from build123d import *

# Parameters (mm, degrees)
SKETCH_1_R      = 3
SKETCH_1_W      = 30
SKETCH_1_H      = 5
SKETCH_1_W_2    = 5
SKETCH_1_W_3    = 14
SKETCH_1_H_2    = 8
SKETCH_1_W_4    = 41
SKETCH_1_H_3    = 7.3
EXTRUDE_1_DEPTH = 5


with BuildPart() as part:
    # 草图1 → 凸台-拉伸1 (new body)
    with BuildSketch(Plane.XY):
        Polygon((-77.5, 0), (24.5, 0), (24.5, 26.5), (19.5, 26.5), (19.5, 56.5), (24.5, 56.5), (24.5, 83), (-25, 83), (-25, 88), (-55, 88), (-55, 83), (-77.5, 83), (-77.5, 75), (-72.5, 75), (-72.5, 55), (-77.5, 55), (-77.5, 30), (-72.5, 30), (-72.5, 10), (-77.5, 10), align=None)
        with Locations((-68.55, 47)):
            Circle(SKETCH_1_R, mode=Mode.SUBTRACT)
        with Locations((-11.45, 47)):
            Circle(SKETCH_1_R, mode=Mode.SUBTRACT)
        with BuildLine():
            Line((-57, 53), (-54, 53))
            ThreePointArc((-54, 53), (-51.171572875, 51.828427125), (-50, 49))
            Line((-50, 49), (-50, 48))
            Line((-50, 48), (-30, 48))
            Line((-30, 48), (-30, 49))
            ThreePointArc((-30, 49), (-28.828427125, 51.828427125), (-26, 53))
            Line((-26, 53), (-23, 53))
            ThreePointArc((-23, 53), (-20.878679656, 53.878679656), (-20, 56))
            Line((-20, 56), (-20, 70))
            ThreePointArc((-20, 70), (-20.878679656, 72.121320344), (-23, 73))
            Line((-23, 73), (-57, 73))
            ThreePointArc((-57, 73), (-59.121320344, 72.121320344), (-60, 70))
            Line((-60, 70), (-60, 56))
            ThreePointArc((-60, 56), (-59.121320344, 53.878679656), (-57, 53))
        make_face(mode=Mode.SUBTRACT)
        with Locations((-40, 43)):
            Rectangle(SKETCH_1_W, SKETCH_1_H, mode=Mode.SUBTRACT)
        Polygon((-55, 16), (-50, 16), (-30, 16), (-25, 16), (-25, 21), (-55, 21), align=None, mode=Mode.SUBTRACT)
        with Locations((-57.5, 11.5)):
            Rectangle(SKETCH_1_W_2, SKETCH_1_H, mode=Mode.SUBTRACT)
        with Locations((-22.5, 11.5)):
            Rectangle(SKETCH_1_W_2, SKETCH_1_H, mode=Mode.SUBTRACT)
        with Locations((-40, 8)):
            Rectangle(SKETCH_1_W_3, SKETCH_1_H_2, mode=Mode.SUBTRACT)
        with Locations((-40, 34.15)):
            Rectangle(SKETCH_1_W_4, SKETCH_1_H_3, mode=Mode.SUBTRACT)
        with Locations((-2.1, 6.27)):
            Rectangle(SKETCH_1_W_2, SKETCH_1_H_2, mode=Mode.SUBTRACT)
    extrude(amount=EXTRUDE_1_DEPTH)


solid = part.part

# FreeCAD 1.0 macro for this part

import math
import FreeCAD as App
import Part
import Sketcher


def add_polygon(sketch, points):
    """Adds a closed chain of lines whose ends are joined by coincident constraints."""
    first, n = sketch.GeometryCount, len(points)
    for a, b in zip(points, points[1:] + points[:1]):
        sketch.addGeometry(Part.LineSegment(App.Vector(*a, 0), App.Vector(*b, 0)), False)
    for i in range(n):
        sketch.addConstraint(Sketcher.Constraint("Coincident", first + i, 2, first + (i + 1) % n, 1))

doc = App.newDocument("Part")
params = doc.addObject("Spreadsheet::Sheet", "Params")
for row, (alias, value) in enumerate([
    ("sketch1_diameter", "6 mm"),
    ("sketch1_radius", "4 mm"),
    ("sketch1_width", "102 mm"),
    ("sketch1_width2", "5 mm"),
    ("sketch1_width3", "30 mm"),
    ("pad1_length", "5 mm"),
], start=1):
    params.set(f"A{row}", alias)
    params.set(f"B{row}", "=" + value)
    params.setAlias(f"B{row}", alias)

body = doc.addObject("PartDesign::Body", "Body")

# Sketch on XY plane
sketch1 = body.newObject("Sketcher::SketchObject", "Sketch")
sketch1.AttachmentSupport = (doc.getObject("XY_Plane"), [""])
sketch1.MapMode = "FlatFace"
add_polygon(sketch1, [(-77.5, 0), (24.5, 0), (24.5, 26.5), (19.5, 26.5), (19.5, 56.5), (24.5, 56.5), (24.5, 83), (-25, 83), (-25, 88), (-55, 88), (-55, 83), (-77.5, 83), (-77.5, 75), (-72.5, 75), (-72.5, 55), (-77.5, 55), (-77.5, 30), (-72.5, 30), (-72.5, 10), (-77.5, 10)])  # lines 0-19
add_polygon(sketch1, [(-55, 9), (-60, 9), (-60, 14), (-55, 14)])  # lines 20-23
add_polygon(sketch1, [(-33, 4), (-47, 4), (-47, 12), (-33, 12)])  # lines 24-27
add_polygon(sketch1, [(-25, 16), (-55, 16), (-55, 21), (-25, 21)])  # lines 28-31
add_polygon(sketch1, [(-19.5, 30.5), (-60.5, 30.5), (-60.5, 37.8), (-19.5, 37.8)])  # lines 32-35
add_polygon(sketch1, [(-20, 9), (-25, 9), (-25, 14), (-20, 14)])  # lines 36-39
add_polygon(sketch1, [(0.4, 2.3), (-4.6, 2.3), (-4.6, 10.3), (0.4, 10.3)])  # lines 40-43
sketch1.addGeometry(Part.Circle(App.Vector(-68.5, 47, 0), App.Vector(0, 0, 1), 3), False)  # 44
add_polygon(sketch1, [(-25, 40.5), (-55, 40.5), (-55, 45.5), (-25, 45.5)])  # lines 45-48
sketch1.addGeometry(Part.LineSegment(App.Vector(-54, 53, 0), App.Vector(-57, 53, 0)), False)  # 49
sketch1.addGeometry(Part.ArcOfCircle(Part.Circle(App.Vector(-57, 56, 0), App.Vector(0, 0, 1), 3), math.radians(180), math.radians(270)), False)  # 50
sketch1.addGeometry(Part.LineSegment(App.Vector(-60, 56, 0), App.Vector(-60, 70, 0)), False)  # 51
sketch1.addGeometry(Part.ArcOfCircle(Part.Circle(App.Vector(-57, 70, 0), App.Vector(0, 0, 1), 3), math.radians(90), math.radians(180)), False)  # 52
sketch1.addGeometry(Part.LineSegment(App.Vector(-57, 73, 0), App.Vector(-23, 73, 0)), False)  # 53
sketch1.addGeometry(Part.ArcOfCircle(Part.Circle(App.Vector(-23, 70, 0), App.Vector(0, 0, 1), 3), math.radians(0), math.radians(90)), False)  # 54
sketch1.addGeometry(Part.LineSegment(App.Vector(-20, 70, 0), App.Vector(-20, 56, 0)), False)  # 55
sketch1.addGeometry(Part.ArcOfCircle(Part.Circle(App.Vector(-23, 56, 0), App.Vector(0, 0, 1), 3), math.radians(-90), math.radians(0)), False)  # 56
sketch1.addGeometry(Part.LineSegment(App.Vector(-23, 53, 0), App.Vector(-26, 53, 0)), False)  # 57
sketch1.addGeometry(Part.ArcOfCircle(Part.Circle(App.Vector(-26, 49, 0), App.Vector(0, 0, 1), 4), math.radians(90), math.radians(180)), False)  # 58
sketch1.addGeometry(Part.LineSegment(App.Vector(-30, 49, 0), App.Vector(-30, 48, 0)), False)  # 59
sketch1.addGeometry(Part.LineSegment(App.Vector(-30, 48, 0), App.Vector(-50, 48, 0)), False)  # 60
sketch1.addGeometry(Part.LineSegment(App.Vector(-50, 48, 0), App.Vector(-50, 49, 0)), False)  # 61
sketch1.addGeometry(Part.ArcOfCircle(Part.Circle(App.Vector(-54, 49, 0), App.Vector(0, 0, 1), 4), math.radians(0), math.radians(90)), False)  # 62
sketch1.addGeometry(Part.Circle(App.Vector(-11.4, 47, 0), App.Vector(0, 0, 1), 3), False)  # 63
sketch1.addConstraint(Sketcher.Constraint("Tangent", 49, 2, 50, 2))
sketch1.addConstraint(Sketcher.Constraint("Tangent", 50, 1, 51, 1))
sketch1.addConstraint(Sketcher.Constraint("Tangent", 51, 2, 52, 2))
sketch1.addConstraint(Sketcher.Constraint("Tangent", 52, 1, 53, 1))
sketch1.addConstraint(Sketcher.Constraint("Tangent", 53, 2, 54, 2))
sketch1.addConstraint(Sketcher.Constraint("Tangent", 54, 1, 55, 1))
sketch1.addConstraint(Sketcher.Constraint("Tangent", 55, 2, 56, 2))
sketch1.addConstraint(Sketcher.Constraint("Tangent", 56, 1, 57, 1))
sketch1.addConstraint(Sketcher.Constraint("Tangent", 57, 2, 58, 1))
sketch1.addConstraint(Sketcher.Constraint("Tangent", 58, 2, 59, 1))
sketch1.addConstraint(Sketcher.Constraint("Coincident", 59, 2, 60, 1))
sketch1.addConstraint(Sketcher.Constraint("Coincident", 60, 2, 61, 1))
sketch1.addConstraint(Sketcher.Constraint("Tangent", 61, 2, 62, 1))
sketch1.addConstraint(Sketcher.Constraint("Tangent", 62, 2, 49, 1))
sketch1.addConstraint(Sketcher.Constraint("Horizontal", 0))
sketch1.addConstraint(Sketcher.Constraint("Vertical", 1))
sketch1.addConstraint(Sketcher.Constraint("Horizontal", 2))
sketch1.addConstraint(Sketcher.Constraint("Vertical", 3))
sketch1.addConstraint(Sketcher.Constraint("Horizontal", 4))
sketch1.addConstraint(Sketcher.Constraint("Vertical", 5))
sketch1.addConstraint(Sketcher.Constraint("Horizontal", 6))
sketch1.addConstraint(Sketcher.Constraint("Vertical", 7))
sketch1.addConstraint(Sketcher.Constraint("Horizontal", 8))
sketch1.addConstraint(Sketcher.Constraint("Vertical", 9))
sketch1.addConstraint(Sketcher.Constraint("Horizontal", 10))
sketch1.addConstraint(Sketcher.Constraint("Vertical", 11))
sketch1.addConstraint(Sketcher.Constraint("Horizontal", 12))
sketch1.addConstraint(Sketcher.Constraint("Vertical", 13))
sketch1.addConstraint(Sketcher.Constraint("Horizontal", 14))
sketch1.addConstraint(Sketcher.Constraint("Vertical", 15))
sketch1.addConstraint(Sketcher.Constraint("Horizontal", 16))
sketch1.addConstraint(Sketcher.Constraint("Vertical", 17))
sketch1.addConstraint(Sketcher.Constraint("Horizontal", 18))
sketch1.addConstraint(Sketcher.Constraint("Vertical", 19))
sketch1.addConstraint(Sketcher.Constraint("Horizontal", 20))
sketch1.addConstraint(Sketcher.Constraint("Vertical", 21))
sketch1.addConstraint(Sketcher.Constraint("Horizontal", 22))
sketch1.addConstraint(Sketcher.Constraint("Vertical", 23))
sketch1.addConstraint(Sketcher.Constraint("Horizontal", 24))
sketch1.addConstraint(Sketcher.Constraint("Vertical", 25))
sketch1.addConstraint(Sketcher.Constraint("Horizontal", 26))
sketch1.addConstraint(Sketcher.Constraint("Vertical", 27))
sketch1.addConstraint(Sketcher.Constraint("Horizontal", 28))
sketch1.addConstraint(Sketcher.Constraint("Vertical", 29))
sketch1.addConstraint(Sketcher.Constraint("Horizontal", 30))
sketch1.addConstraint(Sketcher.Constraint("Vertical", 31))
sketch1.addConstraint(Sketcher.Constraint("Horizontal", 32))
sketch1.addConstraint(Sketcher.Constraint("Vertical", 33))
sketch1.addConstraint(Sketcher.Constraint("Horizontal", 34))
sketch1.addConstraint(Sketcher.Constraint("Vertical", 35))
sketch1.addConstraint(Sketcher.Constraint("Horizontal", 36))
sketch1.addConstraint(Sketcher.Constraint("Vertical", 37))
sketch1.addConstraint(Sketcher.Constraint("Horizontal", 38))
sketch1.addConstraint(Sketcher.Constraint("Vertical", 39))
sketch1.addConstraint(Sketcher.Constraint("Horizontal", 40))
sketch1.addConstraint(Sketcher.Constraint("Vertical", 41))
sketch1.addConstraint(Sketcher.Constraint("Horizontal", 42))
sketch1.addConstraint(Sketcher.Constraint("Vertical", 43))
sketch1.addConstraint(Sketcher.Constraint("Horizontal", 45))
sketch1.addConstraint(Sketcher.Constraint("Vertical", 46))
sketch1.addConstraint(Sketcher.Constraint("Horizontal", 47))
sketch1.addConstraint(Sketcher.Constraint("Vertical", 48))
sketch1.addConstraint(Sketcher.Constraint("Horizontal", 49))
sketch1.addConstraint(Sketcher.Constraint("Vertical", 51))
sketch1.addConstraint(Sketcher.Constraint("Horizontal", 53))
sketch1.addConstraint(Sketcher.Constraint("Vertical", 55))
sketch1.addConstraint(Sketcher.Constraint("Horizontal", 57))
sketch1.addConstraint(Sketcher.Constraint("Vertical", 59))
sketch1.addConstraint(Sketcher.Constraint("Horizontal", 60))
sketch1.addConstraint(Sketcher.Constraint("Vertical", 61))
sketch1.addConstraint(Sketcher.Constraint("Equal", 44, 50))
sketch1.addConstraint(Sketcher.Constraint("Equal", 50, 52))
sketch1.addConstraint(Sketcher.Constraint("Equal", 52, 54))
sketch1.addConstraint(Sketcher.Constraint("Equal", 54, 56))
sketch1.addConstraint(Sketcher.Constraint("Equal", 58, 62))
sketch1.addConstraint(Sketcher.Constraint("Equal", 56, 63))
sketch1.addConstraint(Sketcher.Constraint("PointOnObject", 0, 2, -1))
sketch1.addConstraint(Sketcher.Constraint("Horizontal", 50, 3, 56, 3))
sketch1.addConstraint(Sketcher.Constraint("Horizontal", 44, 3, 63, 3))
sketch1.addConstraint(Sketcher.Constraint("Horizontal", 6, 2, 9, 2))
sketch1.addConstraint(Sketcher.Constraint("Horizontal", 23, 2, 36, 2))
sketch1.addConstraint(Sketcher.Constraint("Horizontal", 22, 2, 37, 2))
sketch1.addConstraint(Sketcher.Constraint("Vertical", 1, 2, 4, 2))
sketch1.addConstraint(Sketcher.Constraint("Vertical", 11, 2, 14, 2))
sketch1.addConstraint(Sketcher.Constraint("Vertical", 13, 2, 16, 2))
sketch1.addConstraint(Sketcher.Constraint("Vertical", 15, 2, 18, 2))
sketch1.addConstraint(Sketcher.Constraint("Vertical", 9, 2, 22, 2))
sketch1.addConstraint(Sketcher.Constraint("Vertical", 23, 2, 28, 2))
sketch1.addConstraint(Sketcher.Constraint("Vertical", 7, 2, 30, 2))
sketch1.addConstraint(Sketcher.Constraint("Vertical", 31, 2, 36, 2))
sketch1.addConstraint(Sketcher.Constraint("Vertical", 29, 2, 45, 2))
sketch1.addConstraint(Sketcher.Constraint("Vertical", 37, 2, 47, 2))
sketch1.addConstraint(Sketcher.Constraint("Vertical", 21, 2, 50, 1))
sketch1.addConstraint(Sketcher.Constraint("Vertical", 39, 2, 54, 1))
sketch1.addConstraint(Sketcher.Constraint("Equal", 4, 12))
sketch1.addConstraint(Sketcher.Constraint("Equal", 18, 20))
sketch1.addConstraint(Sketcher.Constraint("Equal", 22, 36))
sketch1.addConstraint(Sketcher.Constraint("Equal", 38, 40))
sketch1.addConstraint(Sketcher.Constraint("Equal", 49, 57))
sketch1.addConstraint(Sketcher.Constraint("Equal", 47, 3))
sketch1.addConstraint(Sketcher.Constraint("Equal", 1, 5))
sketch1.addConstraint(Sketcher.Constraint("Equal", 42, 7))
sketch1.addConstraint(Sketcher.Constraint("Equal", 60, 13))
sketch1.addConstraint(Sketcher.Constraint("Equal", 13, 17))
sketch1.addConstraint(Sketcher.Constraint("Equal", 9, 21))
sketch1.addConstraint(Sketcher.Constraint("Equal", 11, 25))
sketch1.addConstraint(Sketcher.Constraint("Equal", 23, 29))
sketch1.addConstraint(Sketcher.Constraint("Equal", 27, 41))
sketch1.addConstraint(Sketcher.Constraint("Equal", 39, 46))
sketch1.addConstraint(Sketcher.Constraint("Equal", 26, 51))
sketch1.addConstraint(Sketcher.Constraint("Diameter", 44, 6.0))
sketch1.addConstraint(Sketcher.Constraint("Radius", 58, 4.0))
sketch1.addConstraint(Sketcher.Constraint("DistanceX", 0, 1, 0, 2, 102.0))
sketch1.addConstraint(Sketcher.Constraint("DistanceX", 2, 2, 2, 1, 5.0))
sketch1.addConstraint(Sketcher.Constraint("DistanceX", 8, 2, 8, 1, 30.0))
sketch1.addConstraint(Sketcher.Constraint("DistanceX", 24, 2, 24, 1, 14.0))
sketch1.addConstraint(Sketcher.Constraint("DistanceX", 32, 2, 32, 1, 41.0))
sketch1.addConstraint(Sketcher.Constraint("DistanceX", 49, 2, 49, 1, 3.0))
sketch1.addConstraint(Sketcher.Constraint("DistanceY", 11, 2, 11, 1, 8.0))
sketch1.addConstraint(Sketcher.Constraint("DistanceY", 15, 2, 15, 1, 25.0))
sketch1.addConstraint(Sketcher.Constraint("DistanceY", 19, 2, 19, 1, 10.0))
sketch1.addConstraint(Sketcher.Constraint("DistanceY", 59, 2, 59, 1, 1.0))
sketch1.addConstraint(Sketcher.Constraint("DistanceX", 6, 2, 6, 1, 49.5))
sketch1.addConstraint(Sketcher.Constraint("DistanceY", 33, 1, 33, 2, 7.3))
sketch1.addConstraint(Sketcher.Constraint("DistanceY", -1, 1, 44, 3, 47.0))
sketch1.addConstraint(Sketcher.Constraint("DistanceX", 50, 3, -1, 1, 57.0))
sketch1.addConstraint(Sketcher.Constraint("DistanceY", -1, 1, 50, 3, 56.0))
sketch1.addConstraint(Sketcher.Constraint("DistanceY", -1, 1, 20, 2, 9.0))
sketch1.addConstraint(Sketcher.Constraint("DistanceX", 24, 2, -1, 1, 47.0))
sketch1.addConstraint(Sketcher.Constraint("DistanceY", -1, 1, 24, 2, 4.0))
sketch1.addConstraint(Sketcher.Constraint("DistanceY", -1, 1, 28, 2, 16.0))
sketch1.addConstraint(Sketcher.Constraint("DistanceX", 32, 2, -1, 1, 60.5))
sketch1.addConstraint(Sketcher.Constraint("DistanceY", -1, 1, 32, 2, 30.5))
sketch1.addConstraint(Sketcher.Constraint("DistanceX", 40, 2, -1, 1, 4.6))
sketch1.addConstraint(Sketcher.Constraint("DistanceY", -1, 1, 45, 2, 40.5))
sketch1.addConstraint(Sketcher.Constraint("DistanceX", 44, 3, -1, 1, 68.55))
sketch1.addConstraint(Sketcher.Constraint("DistanceX", 63, 3, -1, 1, 11.45))
sketch1.addConstraint(Sketcher.Constraint("DistanceY", -1, 1, 40, 2, 2.27))
sketch1.setExpression("Constraints[158]", "Params.sketch1_diameter")
sketch1.setExpression("Constraints[159]", "Params.sketch1_radius")
sketch1.setExpression("Constraints[160]", "Params.sketch1_width")
sketch1.setExpression("Constraints[161]", "Params.sketch1_width2")
sketch1.setExpression("Constraints[162]", "Params.sketch1_width3")
pad1 = body.newObject("PartDesign::Pad", "Pad")
pad1.Profile = sketch1
pad1.setExpression("Length", "Params.pad1_length")

doc.recompute()
